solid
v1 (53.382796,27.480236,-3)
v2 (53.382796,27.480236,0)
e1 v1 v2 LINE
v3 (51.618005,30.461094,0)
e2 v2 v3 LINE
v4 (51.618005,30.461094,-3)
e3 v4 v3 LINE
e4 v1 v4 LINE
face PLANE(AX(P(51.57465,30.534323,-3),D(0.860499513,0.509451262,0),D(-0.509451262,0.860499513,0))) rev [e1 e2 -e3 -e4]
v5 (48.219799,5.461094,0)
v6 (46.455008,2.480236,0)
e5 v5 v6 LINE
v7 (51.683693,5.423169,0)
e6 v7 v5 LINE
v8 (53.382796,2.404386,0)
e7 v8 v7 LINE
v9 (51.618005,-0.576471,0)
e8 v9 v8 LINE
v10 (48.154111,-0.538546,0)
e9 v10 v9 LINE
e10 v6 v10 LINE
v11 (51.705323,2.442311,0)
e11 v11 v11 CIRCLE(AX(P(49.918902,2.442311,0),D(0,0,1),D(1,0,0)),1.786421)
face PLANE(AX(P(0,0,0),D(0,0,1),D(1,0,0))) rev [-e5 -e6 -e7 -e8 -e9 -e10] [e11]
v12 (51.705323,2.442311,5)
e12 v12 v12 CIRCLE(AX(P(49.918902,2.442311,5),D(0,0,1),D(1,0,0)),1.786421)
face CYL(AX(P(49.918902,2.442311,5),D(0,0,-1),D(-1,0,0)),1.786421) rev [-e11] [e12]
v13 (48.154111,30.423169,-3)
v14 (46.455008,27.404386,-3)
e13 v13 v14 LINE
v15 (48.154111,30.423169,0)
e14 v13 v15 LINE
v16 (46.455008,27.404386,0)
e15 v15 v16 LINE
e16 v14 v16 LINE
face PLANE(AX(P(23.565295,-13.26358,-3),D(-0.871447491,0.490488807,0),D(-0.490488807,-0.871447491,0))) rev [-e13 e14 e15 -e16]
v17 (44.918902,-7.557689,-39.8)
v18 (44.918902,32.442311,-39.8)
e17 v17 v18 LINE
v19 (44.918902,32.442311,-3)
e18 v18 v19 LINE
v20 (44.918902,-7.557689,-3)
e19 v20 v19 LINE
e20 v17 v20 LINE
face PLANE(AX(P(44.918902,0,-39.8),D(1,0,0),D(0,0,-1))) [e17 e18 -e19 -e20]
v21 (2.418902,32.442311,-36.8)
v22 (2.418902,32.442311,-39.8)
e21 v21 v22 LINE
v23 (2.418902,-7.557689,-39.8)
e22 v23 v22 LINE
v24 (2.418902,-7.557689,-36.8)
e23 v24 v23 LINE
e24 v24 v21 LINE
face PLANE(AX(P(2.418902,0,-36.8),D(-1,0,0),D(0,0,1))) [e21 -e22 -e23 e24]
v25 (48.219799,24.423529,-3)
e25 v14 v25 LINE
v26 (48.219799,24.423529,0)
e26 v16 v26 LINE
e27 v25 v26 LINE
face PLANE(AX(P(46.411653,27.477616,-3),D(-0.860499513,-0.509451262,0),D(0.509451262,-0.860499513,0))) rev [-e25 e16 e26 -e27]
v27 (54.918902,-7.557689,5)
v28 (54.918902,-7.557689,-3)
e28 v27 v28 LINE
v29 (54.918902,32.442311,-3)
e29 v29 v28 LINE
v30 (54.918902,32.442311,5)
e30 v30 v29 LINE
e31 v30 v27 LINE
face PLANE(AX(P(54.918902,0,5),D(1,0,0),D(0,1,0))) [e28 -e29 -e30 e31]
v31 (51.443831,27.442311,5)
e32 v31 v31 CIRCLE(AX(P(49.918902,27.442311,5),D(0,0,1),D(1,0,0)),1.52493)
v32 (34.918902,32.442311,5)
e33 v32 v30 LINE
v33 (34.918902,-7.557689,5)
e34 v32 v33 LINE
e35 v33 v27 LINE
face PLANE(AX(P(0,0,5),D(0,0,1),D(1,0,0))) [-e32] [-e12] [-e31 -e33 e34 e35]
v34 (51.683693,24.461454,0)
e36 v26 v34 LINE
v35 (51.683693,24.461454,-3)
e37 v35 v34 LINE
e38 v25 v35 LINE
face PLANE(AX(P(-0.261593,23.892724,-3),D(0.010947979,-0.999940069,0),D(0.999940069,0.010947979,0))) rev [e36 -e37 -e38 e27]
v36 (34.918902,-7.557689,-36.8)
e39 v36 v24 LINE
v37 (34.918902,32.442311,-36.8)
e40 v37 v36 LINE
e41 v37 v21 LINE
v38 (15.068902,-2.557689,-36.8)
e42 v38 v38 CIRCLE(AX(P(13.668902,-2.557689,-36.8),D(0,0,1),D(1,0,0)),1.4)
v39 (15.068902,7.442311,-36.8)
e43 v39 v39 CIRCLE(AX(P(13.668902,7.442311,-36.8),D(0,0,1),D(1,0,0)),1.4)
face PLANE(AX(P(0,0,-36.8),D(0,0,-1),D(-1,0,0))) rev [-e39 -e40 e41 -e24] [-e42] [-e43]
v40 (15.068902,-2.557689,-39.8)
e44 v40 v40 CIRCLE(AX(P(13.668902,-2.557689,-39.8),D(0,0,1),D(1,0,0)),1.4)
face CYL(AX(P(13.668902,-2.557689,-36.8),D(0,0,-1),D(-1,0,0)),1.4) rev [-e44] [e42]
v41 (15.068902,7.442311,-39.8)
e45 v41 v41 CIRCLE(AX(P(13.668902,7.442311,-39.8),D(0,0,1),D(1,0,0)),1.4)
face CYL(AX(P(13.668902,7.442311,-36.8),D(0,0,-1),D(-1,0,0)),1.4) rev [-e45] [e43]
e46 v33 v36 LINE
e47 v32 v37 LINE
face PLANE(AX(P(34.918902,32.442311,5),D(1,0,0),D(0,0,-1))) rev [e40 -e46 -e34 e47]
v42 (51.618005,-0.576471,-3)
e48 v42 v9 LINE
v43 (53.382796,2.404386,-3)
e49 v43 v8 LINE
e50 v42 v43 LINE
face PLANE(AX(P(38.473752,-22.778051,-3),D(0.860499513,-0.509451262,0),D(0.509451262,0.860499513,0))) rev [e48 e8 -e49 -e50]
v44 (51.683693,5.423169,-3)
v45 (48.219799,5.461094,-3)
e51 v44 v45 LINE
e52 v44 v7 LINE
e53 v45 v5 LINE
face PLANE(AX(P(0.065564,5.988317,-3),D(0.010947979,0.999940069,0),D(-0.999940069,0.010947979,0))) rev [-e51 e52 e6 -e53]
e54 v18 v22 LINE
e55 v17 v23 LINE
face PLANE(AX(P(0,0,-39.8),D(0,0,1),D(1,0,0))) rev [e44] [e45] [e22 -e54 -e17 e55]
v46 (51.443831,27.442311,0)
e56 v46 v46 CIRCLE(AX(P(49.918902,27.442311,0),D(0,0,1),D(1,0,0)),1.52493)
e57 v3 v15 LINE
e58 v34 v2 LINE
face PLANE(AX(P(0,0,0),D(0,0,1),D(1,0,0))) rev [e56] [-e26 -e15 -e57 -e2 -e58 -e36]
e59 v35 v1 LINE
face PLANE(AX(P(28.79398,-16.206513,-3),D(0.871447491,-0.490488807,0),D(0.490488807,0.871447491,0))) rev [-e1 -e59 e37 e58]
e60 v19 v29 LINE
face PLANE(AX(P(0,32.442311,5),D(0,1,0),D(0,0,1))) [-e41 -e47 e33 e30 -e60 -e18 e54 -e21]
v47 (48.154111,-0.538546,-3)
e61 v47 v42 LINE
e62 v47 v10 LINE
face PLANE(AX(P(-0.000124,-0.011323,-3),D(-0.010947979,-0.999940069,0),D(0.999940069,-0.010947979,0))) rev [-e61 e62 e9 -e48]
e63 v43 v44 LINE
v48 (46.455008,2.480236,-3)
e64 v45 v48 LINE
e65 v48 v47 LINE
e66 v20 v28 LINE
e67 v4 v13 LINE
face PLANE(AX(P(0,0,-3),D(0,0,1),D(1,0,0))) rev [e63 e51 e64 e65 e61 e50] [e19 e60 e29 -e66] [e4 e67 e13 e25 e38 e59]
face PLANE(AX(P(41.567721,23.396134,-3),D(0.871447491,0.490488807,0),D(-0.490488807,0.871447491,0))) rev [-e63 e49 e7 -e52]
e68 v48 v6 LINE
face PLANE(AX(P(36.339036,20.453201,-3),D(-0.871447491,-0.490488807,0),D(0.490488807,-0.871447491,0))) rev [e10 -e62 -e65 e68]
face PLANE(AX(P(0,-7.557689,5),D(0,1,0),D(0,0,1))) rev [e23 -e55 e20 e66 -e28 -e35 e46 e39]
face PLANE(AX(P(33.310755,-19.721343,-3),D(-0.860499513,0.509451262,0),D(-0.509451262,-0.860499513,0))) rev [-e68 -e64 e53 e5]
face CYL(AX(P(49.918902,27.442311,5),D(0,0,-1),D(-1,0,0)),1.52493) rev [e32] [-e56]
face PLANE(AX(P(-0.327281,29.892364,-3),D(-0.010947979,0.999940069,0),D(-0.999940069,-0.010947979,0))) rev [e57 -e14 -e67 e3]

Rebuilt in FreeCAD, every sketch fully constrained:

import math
import FreeCAD as App
import Part
import Sketcher

V = App.Vector

doc = App.newDocument("Part")
params = doc.addObject("Spreadsheet::Sheet", "Params")
for row, (alias, value) in enumerate([
    ("sketch1_width", "20 mm"),
    ("sketch1_height", "40 mm"),
    ("pad1_length", "5 mm"),
    ("sketch2_width", "20 mm"),
    ("sketch2_height", "40 mm"),
    ("pad2_length", "3 mm"),
    ("sketch3_width", "10 mm"),
    ("sketch3_height", "40 mm"),
    ("pad3_length", "44.8 mm"),
    ("sketch4_diameter", "2.8 mm"),
    ("sketch4_height", "40 mm"),
    ("sketch4_width", "32.5 mm"),
    ("pad4_length", "3 mm"),
], start=1):
    params.set(f"A{row}", alias)
    params.set(f"B{row}", "=" + value)
    params.setAlias(f"B{row}", alias)

body = doc.addObject("PartDesign::Body", "Body")

# Sketch on XY plane
sketch1 = doc.addObject("Sketcher::SketchObject", "Sketch")
body.addObject(sketch1)
sketch1.AttachmentSupport = (doc.XY_Plane, [""])
sketch1.MapMode = "FlatFace"
sketch1.addGeometry(Part.LineSegment(V(54.9, 32.4, 0), V(34.9, 32.4, 0)), False)
sketch1.addGeometry(Part.LineSegment(V(34.9, 32.4, 0), V(34.9, -7.6, 0)), False)
sketch1.addGeometry(Part.LineSegment(V(34.9, -7.6, 0), V(54.9, -7.6, 0)), False)
sketch1.addGeometry(Part.LineSegment(V(54.9, -7.6, 0), V(54.9, 32.4, 0)), False)
sketch1.addGeometry(Part.ArcOfCircle(Part.Circle(V(49.9, 27.4, 0), V(0, 0, 1), 1.5), math.radians(0), math.radians(90)), False)
sketch1.addGeometry(Part.ArcOfCircle(Part.Circle(V(49.9, 27.4, 0), V(0, 0, 1), 1.5), math.radians(-90), math.radians(0)), False)
sketch1.addGeometry(Part.ArcOfCircle(Part.Circle(V(49.9, 27.4, 0), V(0, 0, 1), 1.5), math.radians(90), math.radians(270)), False)
sketch1.addGeometry(Part.ArcOfCircle(Part.Circle(V(49.9, 2.4, 0), V(0, 0, 1), 1.8), math.radians(0), math.radians(90)), False)
sketch1.addGeometry(Part.ArcOfCircle(Part.Circle(V(49.9, 2.4, 0), V(0, 0, 1), 1.8), math.radians(-90), math.radians(0)), False)
sketch1.addGeometry(Part.ArcOfCircle(Part.Circle(V(49.9, 2.4, 0), V(0, 0, 1), 1.8), math.radians(90), math.radians(270)), False)
sketch1.addConstraint(Sketcher.Constraint("Coincident", 0, 2, 1, 1))
sketch1.addConstraint(Sketcher.Constraint("Coincident", 1, 2, 2, 1))
sketch1.addConstraint(Sketcher.Constraint("Coincident", 2, 2, 3, 1))
sketch1.addConstraint(Sketcher.Constraint("Coincident", 3, 2, 0, 1))
sketch1.addConstraint(Sketcher.Constraint("Tangent", 4, 1, 5, 2))
sketch1.addConstraint(Sketcher.Constraint("Tangent", 5, 1, 6, 2))
sketch1.addConstraint(Sketcher.Constraint("Tangent", 6, 1, 4, 2))
sketch1.addConstraint(Sketcher.Constraint("Tangent", 7, 1, 8, 2))
sketch1.addConstraint(Sketcher.Constraint("Tangent", 8, 1, 9, 2))
sketch1.addConstraint(Sketcher.Constraint("Tangent", 9, 1, 7, 2))
sketch1.addConstraint(Sketcher.Constraint("Horizontal", 0))
sketch1.addConstraint(Sketcher.Constraint("Vertical", 1))
sketch1.addConstraint(Sketcher.Constraint("Horizontal", 2))
sketch1.addConstraint(Sketcher.Constraint("Vertical", 3))
sketch1.addConstraint(Sketcher.Constraint("Horizontal", 6, 3, 4, 1))
sketch1.addConstraint(Sketcher.Constraint("Horizontal", 9, 3, 7, 1))
sketch1.addConstraint(Sketcher.Constraint("Vertical", 6, 3, 7, 3))
sketch1.addConstraint(Sketcher.Constraint("Vertical", 9, 3, 5, 1))
sketch1.addConstraint(Sketcher.Constraint("Vertical", 5, 1, 6, 1))
sketch1.addConstraint(Sketcher.Constraint("Vertical", 6, 1, 8, 1))
sketch1.addConstraint(Sketcher.Constraint("Vertical", 8, 1, 9, 1))
sketch1.addConstraint(Sketcher.Constraint("DistanceX", 0, 2, 0, 1, 20.0))
sketch1.addConstraint(Sketcher.Constraint("DistanceY", 1, 2, 1, 1, 40.0))
sketch1.addConstraint(Sketcher.Constraint("DistanceY", 7, 3, 6, 3, 25.0))
sketch1.addConstraint(Sketcher.Constraint("DistanceX", 0, 2, 5, 3, 15.0))
sketch1.addConstraint(Sketcher.Constraint("DistanceY", 5, 3, 0, 2, 5.0))
sketch1.addConstraint(Sketcher.Constraint("Radius", 4, 1.52493))
sketch1.addConstraint(Sketcher.Constraint("Radius", 7, 1.786421))
sketch1.addConstraint(Sketcher.Constraint("DistanceX", -1, 1, 4, 3, 49.918902))
sketch1.addConstraint(Sketcher.Constraint("DistanceY", -1, 1, 4, 3, 27.442311))
sketch1.setExpression("Constraints[21]", "Params.sketch1_width")
sketch1.setExpression("Constraints[22]", "Params.sketch1_height")
pad1 = doc.addObject("PartDesign::Pad", "Pad")
body.addObject(pad1)
pad1.Profile = sketch1
pad1.setExpression("Length", "Params.pad1_length")

# Sketch on XY plane
sketch2 = doc.addObject("Sketcher::SketchObject", "Sketch001")
body.addObject(sketch2)
sketch2.AttachmentSupport = (doc.XY_Plane, [""])
sketch2.MapMode = "FlatFace"
sketch2.addGeometry(Part.LineSegment(V(54.9, -7.6, 0), V(54.9, 32.4, 0)), False)
sketch2.addGeometry(Part.LineSegment(V(54.9, 32.4, 0), V(34.9, 32.4, 0)), False)
sketch2.addGeometry(Part.LineSegment(V(34.9, 32.4, 0), V(34.9, -7.6, 0)), False)
sketch2.addGeometry(Part.LineSegment(V(34.9, -7.6, 0), V(54.9, -7.6, 0)), False)
sketch2.addGeometry(Part.LineSegment(V(49.9, -0.6, 0), V(48.2, -0.5, 0)), False)
sketch2.addGeometry(Part.LineSegment(V(48.2, -0.5, 0), V(46.5, 2.5, 0)), False)
sketch2.addGeometry(Part.LineSegment(V(46.5, 2.5, 0), V(48.2, 5.5, 0)), False)
sketch2.addGeometry(Part.LineSegment(V(48.2, 5.5, 0), V(49.9, 5.4, 0)), False)
sketch2.addGeometry(Part.LineSegment(V(49.9, 5.4, 0), V(51.7, 5.4, 0)), False)
sketch2.addGeometry(Part.LineSegment(V(51.7, 5.4, 0), V(53.4, 2.4, 0)), False)
sketch2.addGeometry(Part.LineSegment(V(53.4, 2.4, 0), V(51.6, -0.6, 0)), False)
sketch2.addGeometry(Part.LineSegment(V(51.6, -0.6, 0), V(49.9, -0.6, 0)), False)
sketch2.addGeometry(Part.LineSegment(V(49.9, 24.4, 0), V(48.2, 24.4, 0)), False)
sketch2.addGeometry(Part.LineSegment(V(48.2, 24.4, 0), V(46.5, 27.4, 0)), False)
sketch2.addGeometry(Part.LineSegment(V(46.5, 27.4, 0), V(48.2, 30.4, 0)), False)
sketch2.addGeometry(Part.LineSegment(V(48.2, 30.4, 0), V(49.9, 30.4, 0)), False)
sketch2.addGeometry(Part.LineSegment(V(49.9, 30.4, 0), V(51.6, 30.5, 0)), False)
sketch2.addGeometry(Part.LineSegment(V(51.6, 30.5, 0), V(53.4, 27.5, 0)), False)
sketch2.addGeometry(Part.LineSegment(V(53.4, 27.5, 0), V(51.7, 24.5, 0)), False)
sketch2.addGeometry(Part.LineSegment(V(51.7, 24.5, 0), V(49.9, 24.4, 0)), False)
sketch2.addConstraint(Sketcher.Constraint("Coincident", 0, 2, 1, 1))
sketch2.addConstraint(Sketcher.Constraint("Coincident", 1, 2, 2, 1))
sketch2.addConstraint(Sketcher.Constraint("Coincident", 2, 2, 3, 1))
sketch2.addConstraint(Sketcher.Constraint("Coincident", 3, 2, 0, 1))
sketch2.addConstraint(Sketcher.Constraint("Coincident", 4, 2, 5, 1))
sketch2.addConstraint(Sketcher.Constraint("Coincident", 5, 2, 6, 1))
sketch2.addConstraint(Sketcher.Constraint("Coincident", 6, 2, 7, 1))
sketch2.addConstraint(Sketcher.Constraint("Coincident", 7, 2, 8, 1))
sketch2.addConstraint(Sketcher.Constraint("Coincident", 8, 2, 9, 1))
sketch2.addConstraint(Sketcher.Constraint("Coincident", 9, 2, 10, 1))
sketch2.addConstraint(Sketcher.Constraint("Coincident", 10, 2, 11, 1))
sketch2.addConstraint(Sketcher.Constraint("Coincident", 11, 2, 4, 1))
sketch2.addConstraint(Sketcher.Constraint("Coincident", 12, 2, 13, 1))
sketch2.addConstraint(Sketcher.Constraint("Coincident", 13, 2, 14, 1))
sketch2.addConstraint(Sketcher.Constraint("Coincident", 14, 2, 15, 1))
sketch2.addConstraint(Sketcher.Constraint("Coincident", 15, 2, 16, 1))
sketch2.addConstraint(Sketcher.Constraint("Coincident", 16, 2, 17, 1))
sketch2.addConstraint(Sketcher.Constraint("Coincident", 17, 2, 18, 1))
sketch2.addConstraint(Sketcher.Constraint("Coincident", 18, 2, 19, 1))
sketch2.addConstraint(Sketcher.Constraint("Coincident", 19, 2, 12, 1))
sketch2.addConstraint(Sketcher.Constraint("Vertical", 0))
sketch2.addConstraint(Sketcher.Constraint("Horizontal", 1))
sketch2.addConstraint(Sketcher.Constraint("Vertical", 2))
sketch2.addConstraint(Sketcher.Constraint("Horizontal", 3))
sketch2.addConstraint(Sketcher.Constraint("Parallel", 4, 7))
sketch2.addConstraint(Sketcher.Constraint("Parallel", 7, 8))
sketch2.addConstraint(Sketcher.Constraint("Parallel", 5, 9))
sketch2.addConstraint(Sketcher.Constraint("Parallel", 6, 10))
sketch2.addConstraint(Sketcher.Constraint("Parallel", 8, 11))
sketch2.addConstraint(Sketcher.Constraint("Parallel", 12, 15))
sketch2.addConstraint(Sketcher.Constraint("Parallel", 15, 16))
sketch2.addConstraint(Sketcher.Constraint("Parallel", 13, 17))
sketch2.addConstraint(Sketcher.Constraint("Parallel", 14, 18))
sketch2.addConstraint(Sketcher.Constraint("Parallel", 16, 19))
sketch2.addConstraint(Sketcher.Constraint("Vertical", 7, 2, 11, 2))
sketch2.addConstraint(Sketcher.Constraint("Vertical", 6, 2, 12, 2))
sketch2.addConstraint(Sketcher.Constraint("Vertical", 5, 2, 13, 2))
sketch2.addConstraint(Sketcher.Constraint("Vertical", 4, 2, 14, 2))
sketch2.addConstraint(Sketcher.Constraint("Vertical", 11, 2, 15, 2))
sketch2.addConstraint(Sketcher.Constraint("Vertical", 10, 2, 16, 2))
sketch2.addConstraint(Sketcher.Constraint("Vertical", 9, 2, 17, 2))
sketch2.addConstraint(Sketcher.Constraint("Vertical", 15, 2, 19, 2))
sketch2.addConstraint(Sketcher.Constraint("Equal", 5, 6))
sketch2.addConstraint(Sketcher.Constraint("Equal", 4, 8))
sketch2.addConstraint(Sketcher.Constraint("Equal", 6, 9))
sketch2.addConstraint(Sketcher.Constraint("Equal", 11, 12))
sketch2.addConstraint(Sketcher.Constraint("Equal", 10, 13))
sketch2.addConstraint(Sketcher.Constraint("Equal", 13, 14))
sketch2.addConstraint(Sketcher.Constraint("DistanceX", 1, 2, 1, 1, 20.0))
sketch2.addConstraint(Sketcher.Constraint("DistanceY", 0, 1, 0, 2, 40.0))
sketch2.addConstraint(Sketcher.Constraint("DistanceX", 7, 2, 3, 2, 5.0))
sketch2.addConstraint(Sketcher.Constraint("Distance", 5, 3.464102))
sketch2.addConstraint(Sketcher.Constraint("DistanceX", -1, 1, 0, 2, 54.918902))
sketch2.addConstraint(Sketcher.Constraint("DistanceX", -1, 1, 6, 2, 48.219799))
sketch2.addConstraint(Sketcher.Constraint("DistanceY", -1, 1, 0, 2, 32.442311))
sketch2.addConstraint(Sketcher.Constraint("DistanceX", -1, 1, 4, 2, 48.154111))
sketch2.addConstraint(Sketcher.Constraint("DistanceY", -1, 1, 7, 2, 5.442491))
sketch2.addConstraint(Sketcher.Constraint("DistanceY", -1, 1, 8, 2, 5.423169))
sketch2.addConstraint(Sketcher.Constraint("DistanceY", 10, 2, -1, 1, 0.576471))
sketch2.addConstraint(Sketcher.Constraint("DistanceY", -1, 1, 12, 2, 24.423529))
sketch2.setExpression("Constraints[48]", "Params.sketch2_width")
sketch2.setExpression("Constraints[49]", "Params.sketch2_height")
pad2 = doc.addObject("PartDesign::Pad", "Pad001")
body.addObject(pad2)
pad2.Profile = sketch2
pad2.setExpression("Length", "Params.pad2_length")
pad2.Reversed = True

# Sketch on XY plane
sketch3 = doc.addObject("Sketcher::SketchObject", "Sketch002")
body.addObject(sketch3)
sketch3.AttachmentSupport = (doc.XY_Plane, [""])
sketch3.MapMode = "FlatFace"
sketch3.AttachmentOffset = App.Placement(V(0, 0, 5), App.Rotation())
sketch3.addGeometry(Part.LineSegment(V(35, 32, 0), V(35, -8, 0)), False)
sketch3.addGeometry(Part.LineSegment(V(35, -8, 0), V(45, -8, 0)), False)
sketch3.addGeometry(Part.LineSegment(V(45, -8, 0), V(45, 32, 0)), False)
sketch3.addGeometry(Part.LineSegment(V(45, 32, 0), V(35, 32, 0)), False)
sketch3.addConstraint(Sketcher.Constraint("Coincident", 0, 2, 1, 1))
sketch3.addConstraint(Sketcher.Constraint("Coincident", 1, 2, 2, 1))
sketch3.addConstraint(Sketcher.Constraint("Coincident", 2, 2, 3, 1))
sketch3.addConstraint(Sketcher.Constraint("Coincident", 3, 2, 0, 1))
sketch3.addConstraint(Sketcher.Constraint("Vertical", 0))
sketch3.addConstraint(Sketcher.Constraint("Horizontal", 1))
sketch3.addConstraint(Sketcher.Constraint("Vertical", 2))
sketch3.addConstraint(Sketcher.Constraint("Horizontal", 3))
sketch3.addConstraint(Sketcher.Constraint("DistanceX", 1, 1, 1, 2, 10.0))
sketch3.addConstraint(Sketcher.Constraint("DistanceY", 0, 2, 0, 1, 40.0))
sketch3.addConstraint(Sketcher.Constraint("DistanceX", -1, 1, 0, 2, 34.918902))
sketch3.addConstraint(Sketcher.Constraint("DistanceY", 0, 2, -1, 1, 7.557689))
sketch3.setExpression("Constraints[8]", "Params.sketch3_width")
sketch3.setExpression("Constraints[9]", "Params.sketch3_height")
pad3 = doc.addObject("PartDesign::Pad", "Pad002")
body.addObject(pad3)
pad3.Profile = sketch3
pad3.setExpression("Length", "Params.pad3_length")
pad3.Reversed = True

# Sketch on XY plane
sketch4 = doc.addObject("Sketcher::SketchObject", "Sketch003")
body.addObject(sketch4)
sketch4.AttachmentSupport = (doc.XY_Plane, [""])
sketch4.MapMode = "FlatFace"
sketch4.AttachmentOffset = App.Placement(V(0, 0, -39.8), App.Rotation())
sketch4.addGeometry(Part.LineSegment(V(2.4, 32.4, 0), V(2.4, -7.6, 0)), False)
sketch4.addGeometry(Part.LineSegment(V(2.4, -7.6, 0), V(34.9, -7.6, 0)), False)
sketch4.addGeometry(Part.LineSegment(V(34.9, -7.6, 0), V(34.9, 32.4, 0)), False)
sketch4.addGeometry(Part.LineSegment(V(34.9, 32.4, 0), V(2.4, 32.4, 0)), False)
sketch4.addGeometry(Part.Circle(V(13.7, -2.6, 0), V(0, 0, 1), 1.4), False)
sketch4.addGeometry(Part.Circle(V(13.7, 7.4, 0), V(0, 0, 1), 1.4), False)
sketch4.addConstraint(Sketcher.Constraint("Coincident", 0, 2, 1, 1))
sketch4.addConstraint(Sketcher.Constraint("Coincident", 1, 2, 2, 1))
sketch4.addConstraint(Sketcher.Constraint("Coincident", 2, 2, 3, 1))
sketch4.addConstraint(Sketcher.Constraint("Coincident", 3, 2, 0, 1))
sketch4.addConstraint(Sketcher.Constraint("Vertical", 0))
sketch4.addConstraint(Sketcher.Constraint("Horizontal", 1))
sketch4.addConstraint(Sketcher.Constraint("Vertical", 2))
sketch4.addConstraint(Sketcher.Constraint("Horizontal", 3))
sketch4.addConstraint(Sketcher.Constraint("Equal", 4, 5))
sketch4.addConstraint(Sketcher.Constraint("Vertical", 4, 3, 5, 3))
sketch4.addConstraint(Sketcher.Constraint("Diameter", 4, 2.8))
sketch4.addConstraint(Sketcher.Constraint("DistanceY", 0, 2, 0, 1, 40.0))
sketch4.addConstraint(Sketcher.Constraint("DistanceX", 1, 1, 1, 2, 32.5))
sketch4.addConstraint(Sketcher.Constraint("DistanceY", 4, 3, 5, 3, 10.0))
sketch4.addConstraint(Sketcher.Constraint("DistanceY", 0, 2, 4, 3, 5.0))
sketch4.addConstraint(Sketcher.Constraint("DistanceX", 0, 2, 4, 3, 11.25))
sketch4.addConstraint(Sketcher.Constraint("DistanceX", -1, 1, 4, 3, 13.668902))
sketch4.addConstraint(Sketcher.Constraint("DistanceY", 4, 3, -1, 1, 2.557689))
sketch4.setExpression("Constraints[10]", "Params.sketch4_diameter")
sketch4.setExpression("Constraints[11]", "Params.sketch4_height")
sketch4.setExpression("Constraints[12]", "Params.sketch4_width")
pad4 = doc.addObject("PartDesign::Pad", "Pad003")
body.addObject(pad4)
pad4.Profile = sketch4
pad4.setExpression("Length", "Params.pad4_length")

doc.recompute()
